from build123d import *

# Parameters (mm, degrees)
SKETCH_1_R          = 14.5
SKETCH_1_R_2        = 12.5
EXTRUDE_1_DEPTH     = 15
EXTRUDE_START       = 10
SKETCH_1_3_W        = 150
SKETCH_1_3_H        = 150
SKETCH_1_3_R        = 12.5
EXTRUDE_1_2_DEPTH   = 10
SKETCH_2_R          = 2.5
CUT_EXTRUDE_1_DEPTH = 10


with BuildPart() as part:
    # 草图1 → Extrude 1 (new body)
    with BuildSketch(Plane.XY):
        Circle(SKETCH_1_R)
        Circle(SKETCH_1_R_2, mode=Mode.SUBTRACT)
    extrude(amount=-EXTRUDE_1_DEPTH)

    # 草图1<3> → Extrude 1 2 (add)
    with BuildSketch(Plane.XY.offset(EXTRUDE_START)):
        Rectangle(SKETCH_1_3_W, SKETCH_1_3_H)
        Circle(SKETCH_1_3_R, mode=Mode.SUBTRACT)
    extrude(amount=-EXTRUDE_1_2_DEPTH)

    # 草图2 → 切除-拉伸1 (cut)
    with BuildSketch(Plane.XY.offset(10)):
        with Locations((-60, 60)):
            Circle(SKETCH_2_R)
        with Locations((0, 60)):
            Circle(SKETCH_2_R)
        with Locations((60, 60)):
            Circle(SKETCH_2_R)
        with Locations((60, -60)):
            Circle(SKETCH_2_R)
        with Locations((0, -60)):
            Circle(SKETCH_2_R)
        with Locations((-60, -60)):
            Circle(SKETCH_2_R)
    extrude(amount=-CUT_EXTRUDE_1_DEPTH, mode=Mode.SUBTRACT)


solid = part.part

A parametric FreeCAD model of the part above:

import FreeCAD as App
import Part
import Sketcher
from FreeCAD import Vector
Q = App.Units.Quantity

doc = App.newDocument("Part")
body = doc.addObject("PartDesign::Body", "Body")

# Sketch on XY plane
sketch1 = body.newObject("Sketcher::SketchObject", "Sketch")
sketch1.AttachmentSupport = (doc.getObject("XY_Plane"), [""])
sketch1.MapMode = "FlatFace"
sketch1.addGeometry([
    Part.Circle(Vector(0, 0, 0), Vector(0, 0, 1), 14),
    Part.Circle(Vector(0, 0, 0), Vector(0, 0, 1), 12),
], False)
sketch1.addConstraint([
    Sketcher.Constraint("Coincident", 0, 3, -1, 1),
    Sketcher.Constraint("Coincident", 1, 3, -1, 1),
    Sketcher.Constraint("Diameter", 0, Q("29 mm")),
    Sketcher.Constraint("Diameter", 1, Q("25 mm")),
])
pad1 = body.newObject("PartDesign::Pad", "Pad")
pad1.Profile = sketch1
pad1.Length = 15
pad1.Reversed = True

# Sketch on XY plane
sketch2 = body.newObject("Sketcher::SketchObject", "Sketch001")
sketch2.AttachmentSupport = (doc.getObject("XY_Plane"), [""])
sketch2.MapMode = "FlatFace"
sketch2.AttachmentOffset = App.Placement(Vector(0, 0, 10), App.Rotation())
sketch2.addGeometry([
    Part.LineSegment(Vector(-75, 75, 0), Vector(-75, -75, 0)),  # 0
    Part.LineSegment(Vector(-75, -75, 0), Vector(75, -75, 0)),  # 1
    Part.LineSegment(Vector(75, -75, 0), Vector(75, 75, 0)),  # 2
    Part.LineSegment(Vector(75, 75, 0), Vector(-75, 75, 0)),  # 3
    Part.Circle(Vector(0, 0, 0), Vector(0, 0, 1), 12),  # 4
], False)
sketch2.addConstraint([
    Sketcher.Constraint("Coincident", 0, 2, 1, 1),
    Sketcher.Constraint("Coincident", 1, 2, 2, 1),
    Sketcher.Constraint("Coincident", 2, 2, 3, 1),
    Sketcher.Constraint("Coincident", 3, 2, 0, 1),
    Sketcher.Constraint("Vertical", 0),
    Sketcher.Constraint("Horizontal", 1),
    Sketcher.Constraint("Vertical", 2),
    Sketcher.Constraint("Horizontal", 3),
    Sketcher.Constraint("Coincident", 4, 3, -1, 1),
    Sketcher.Constraint("Symmetric", 0, 2, 2, 2, -1, 1),
    Sketcher.Constraint("Equal", 3, 0),
    Sketcher.Constraint("Diameter", 4, Q("25 mm")),
    Sketcher.Constraint("DistanceX", 1, 1, 1, 2, Q("150 mm")),
])
pad2 = body.newObject("PartDesign::Pad", "Pad001")
pad2.Profile = sketch2
pad2.Length = 10
pad2.Reversed = True

# Sketch on XY plane
sketch3 = body.newObject("Sketcher::SketchObject", "Sketch002")
sketch3.AttachmentSupport = (doc.getObject("XY_Plane"), [""])
sketch3.MapMode = "FlatFace"
sketch3.AttachmentOffset = App.Placement(Vector(0, 0, 10), App.Rotation())
sketch3.addGeometry([
    Part.Circle(Vector(-60, 60, 0), Vector(0, 0, 1), 2.5),  # 0
    Part.Circle(Vector(0, 60, 0), Vector(0, 0, 1), 2.5),  # 1
    Part.Circle(Vector(60, 60, 0), Vector(0, 0, 1), 2.5),  # 2
    Part.Circle(Vector(60, -60, 0), Vector(0, 0, 1), 2.5),  # 3
    Part.Circle(Vector(0, -60, 0), Vector(0, 0, 1), 2.5),  # 4
    Part.Circle(Vector(-60, -60, 0), Vector(0, 0, 1), 2.5),  # 5
], False)
sketch3.addConstraint([
    Sketcher.Constraint("Equal", 0, 1),
    Sketcher.Constraint("Equal", 1, 2),
    Sketcher.Constraint("Equal", 2, 3),
    Sketcher.Constraint("Equal", 3, 4),
    Sketcher.Constraint("Equal", 4, 5),
    Sketcher.Constraint("Symmetric", 0, 3, 3, 3, -1, 1),
    Sketcher.Constraint("Symmetric", 1, 3, 4, 3, -1, 1),
    Sketcher.Constraint("Symmetric", 2, 3, 5, 3, -1, 1),
    Sketcher.Constraint("Symmetric", 0, 3, 2, 3, -2),
    Sketcher.Constraint("PointOnObject", 1, 3, -2),
    Sketcher.Constraint("Horizontal", 0, 3, 1, 3),
    Sketcher.Constraint("Diameter", 0, Q("5 mm")),
    Sketcher.Constraint("DistanceX", 0, 3, -1, 1, Q("60 mm")),
    Sketcher.Constraint("DistanceY", -1, 1, 0, 3, Q("60 mm")),
])
pocket1 = body.newObject("PartDesign::Pocket", "Pocket")
pocket1.Profile = sketch3
pocket1.Length = 10

doc.recompute()
